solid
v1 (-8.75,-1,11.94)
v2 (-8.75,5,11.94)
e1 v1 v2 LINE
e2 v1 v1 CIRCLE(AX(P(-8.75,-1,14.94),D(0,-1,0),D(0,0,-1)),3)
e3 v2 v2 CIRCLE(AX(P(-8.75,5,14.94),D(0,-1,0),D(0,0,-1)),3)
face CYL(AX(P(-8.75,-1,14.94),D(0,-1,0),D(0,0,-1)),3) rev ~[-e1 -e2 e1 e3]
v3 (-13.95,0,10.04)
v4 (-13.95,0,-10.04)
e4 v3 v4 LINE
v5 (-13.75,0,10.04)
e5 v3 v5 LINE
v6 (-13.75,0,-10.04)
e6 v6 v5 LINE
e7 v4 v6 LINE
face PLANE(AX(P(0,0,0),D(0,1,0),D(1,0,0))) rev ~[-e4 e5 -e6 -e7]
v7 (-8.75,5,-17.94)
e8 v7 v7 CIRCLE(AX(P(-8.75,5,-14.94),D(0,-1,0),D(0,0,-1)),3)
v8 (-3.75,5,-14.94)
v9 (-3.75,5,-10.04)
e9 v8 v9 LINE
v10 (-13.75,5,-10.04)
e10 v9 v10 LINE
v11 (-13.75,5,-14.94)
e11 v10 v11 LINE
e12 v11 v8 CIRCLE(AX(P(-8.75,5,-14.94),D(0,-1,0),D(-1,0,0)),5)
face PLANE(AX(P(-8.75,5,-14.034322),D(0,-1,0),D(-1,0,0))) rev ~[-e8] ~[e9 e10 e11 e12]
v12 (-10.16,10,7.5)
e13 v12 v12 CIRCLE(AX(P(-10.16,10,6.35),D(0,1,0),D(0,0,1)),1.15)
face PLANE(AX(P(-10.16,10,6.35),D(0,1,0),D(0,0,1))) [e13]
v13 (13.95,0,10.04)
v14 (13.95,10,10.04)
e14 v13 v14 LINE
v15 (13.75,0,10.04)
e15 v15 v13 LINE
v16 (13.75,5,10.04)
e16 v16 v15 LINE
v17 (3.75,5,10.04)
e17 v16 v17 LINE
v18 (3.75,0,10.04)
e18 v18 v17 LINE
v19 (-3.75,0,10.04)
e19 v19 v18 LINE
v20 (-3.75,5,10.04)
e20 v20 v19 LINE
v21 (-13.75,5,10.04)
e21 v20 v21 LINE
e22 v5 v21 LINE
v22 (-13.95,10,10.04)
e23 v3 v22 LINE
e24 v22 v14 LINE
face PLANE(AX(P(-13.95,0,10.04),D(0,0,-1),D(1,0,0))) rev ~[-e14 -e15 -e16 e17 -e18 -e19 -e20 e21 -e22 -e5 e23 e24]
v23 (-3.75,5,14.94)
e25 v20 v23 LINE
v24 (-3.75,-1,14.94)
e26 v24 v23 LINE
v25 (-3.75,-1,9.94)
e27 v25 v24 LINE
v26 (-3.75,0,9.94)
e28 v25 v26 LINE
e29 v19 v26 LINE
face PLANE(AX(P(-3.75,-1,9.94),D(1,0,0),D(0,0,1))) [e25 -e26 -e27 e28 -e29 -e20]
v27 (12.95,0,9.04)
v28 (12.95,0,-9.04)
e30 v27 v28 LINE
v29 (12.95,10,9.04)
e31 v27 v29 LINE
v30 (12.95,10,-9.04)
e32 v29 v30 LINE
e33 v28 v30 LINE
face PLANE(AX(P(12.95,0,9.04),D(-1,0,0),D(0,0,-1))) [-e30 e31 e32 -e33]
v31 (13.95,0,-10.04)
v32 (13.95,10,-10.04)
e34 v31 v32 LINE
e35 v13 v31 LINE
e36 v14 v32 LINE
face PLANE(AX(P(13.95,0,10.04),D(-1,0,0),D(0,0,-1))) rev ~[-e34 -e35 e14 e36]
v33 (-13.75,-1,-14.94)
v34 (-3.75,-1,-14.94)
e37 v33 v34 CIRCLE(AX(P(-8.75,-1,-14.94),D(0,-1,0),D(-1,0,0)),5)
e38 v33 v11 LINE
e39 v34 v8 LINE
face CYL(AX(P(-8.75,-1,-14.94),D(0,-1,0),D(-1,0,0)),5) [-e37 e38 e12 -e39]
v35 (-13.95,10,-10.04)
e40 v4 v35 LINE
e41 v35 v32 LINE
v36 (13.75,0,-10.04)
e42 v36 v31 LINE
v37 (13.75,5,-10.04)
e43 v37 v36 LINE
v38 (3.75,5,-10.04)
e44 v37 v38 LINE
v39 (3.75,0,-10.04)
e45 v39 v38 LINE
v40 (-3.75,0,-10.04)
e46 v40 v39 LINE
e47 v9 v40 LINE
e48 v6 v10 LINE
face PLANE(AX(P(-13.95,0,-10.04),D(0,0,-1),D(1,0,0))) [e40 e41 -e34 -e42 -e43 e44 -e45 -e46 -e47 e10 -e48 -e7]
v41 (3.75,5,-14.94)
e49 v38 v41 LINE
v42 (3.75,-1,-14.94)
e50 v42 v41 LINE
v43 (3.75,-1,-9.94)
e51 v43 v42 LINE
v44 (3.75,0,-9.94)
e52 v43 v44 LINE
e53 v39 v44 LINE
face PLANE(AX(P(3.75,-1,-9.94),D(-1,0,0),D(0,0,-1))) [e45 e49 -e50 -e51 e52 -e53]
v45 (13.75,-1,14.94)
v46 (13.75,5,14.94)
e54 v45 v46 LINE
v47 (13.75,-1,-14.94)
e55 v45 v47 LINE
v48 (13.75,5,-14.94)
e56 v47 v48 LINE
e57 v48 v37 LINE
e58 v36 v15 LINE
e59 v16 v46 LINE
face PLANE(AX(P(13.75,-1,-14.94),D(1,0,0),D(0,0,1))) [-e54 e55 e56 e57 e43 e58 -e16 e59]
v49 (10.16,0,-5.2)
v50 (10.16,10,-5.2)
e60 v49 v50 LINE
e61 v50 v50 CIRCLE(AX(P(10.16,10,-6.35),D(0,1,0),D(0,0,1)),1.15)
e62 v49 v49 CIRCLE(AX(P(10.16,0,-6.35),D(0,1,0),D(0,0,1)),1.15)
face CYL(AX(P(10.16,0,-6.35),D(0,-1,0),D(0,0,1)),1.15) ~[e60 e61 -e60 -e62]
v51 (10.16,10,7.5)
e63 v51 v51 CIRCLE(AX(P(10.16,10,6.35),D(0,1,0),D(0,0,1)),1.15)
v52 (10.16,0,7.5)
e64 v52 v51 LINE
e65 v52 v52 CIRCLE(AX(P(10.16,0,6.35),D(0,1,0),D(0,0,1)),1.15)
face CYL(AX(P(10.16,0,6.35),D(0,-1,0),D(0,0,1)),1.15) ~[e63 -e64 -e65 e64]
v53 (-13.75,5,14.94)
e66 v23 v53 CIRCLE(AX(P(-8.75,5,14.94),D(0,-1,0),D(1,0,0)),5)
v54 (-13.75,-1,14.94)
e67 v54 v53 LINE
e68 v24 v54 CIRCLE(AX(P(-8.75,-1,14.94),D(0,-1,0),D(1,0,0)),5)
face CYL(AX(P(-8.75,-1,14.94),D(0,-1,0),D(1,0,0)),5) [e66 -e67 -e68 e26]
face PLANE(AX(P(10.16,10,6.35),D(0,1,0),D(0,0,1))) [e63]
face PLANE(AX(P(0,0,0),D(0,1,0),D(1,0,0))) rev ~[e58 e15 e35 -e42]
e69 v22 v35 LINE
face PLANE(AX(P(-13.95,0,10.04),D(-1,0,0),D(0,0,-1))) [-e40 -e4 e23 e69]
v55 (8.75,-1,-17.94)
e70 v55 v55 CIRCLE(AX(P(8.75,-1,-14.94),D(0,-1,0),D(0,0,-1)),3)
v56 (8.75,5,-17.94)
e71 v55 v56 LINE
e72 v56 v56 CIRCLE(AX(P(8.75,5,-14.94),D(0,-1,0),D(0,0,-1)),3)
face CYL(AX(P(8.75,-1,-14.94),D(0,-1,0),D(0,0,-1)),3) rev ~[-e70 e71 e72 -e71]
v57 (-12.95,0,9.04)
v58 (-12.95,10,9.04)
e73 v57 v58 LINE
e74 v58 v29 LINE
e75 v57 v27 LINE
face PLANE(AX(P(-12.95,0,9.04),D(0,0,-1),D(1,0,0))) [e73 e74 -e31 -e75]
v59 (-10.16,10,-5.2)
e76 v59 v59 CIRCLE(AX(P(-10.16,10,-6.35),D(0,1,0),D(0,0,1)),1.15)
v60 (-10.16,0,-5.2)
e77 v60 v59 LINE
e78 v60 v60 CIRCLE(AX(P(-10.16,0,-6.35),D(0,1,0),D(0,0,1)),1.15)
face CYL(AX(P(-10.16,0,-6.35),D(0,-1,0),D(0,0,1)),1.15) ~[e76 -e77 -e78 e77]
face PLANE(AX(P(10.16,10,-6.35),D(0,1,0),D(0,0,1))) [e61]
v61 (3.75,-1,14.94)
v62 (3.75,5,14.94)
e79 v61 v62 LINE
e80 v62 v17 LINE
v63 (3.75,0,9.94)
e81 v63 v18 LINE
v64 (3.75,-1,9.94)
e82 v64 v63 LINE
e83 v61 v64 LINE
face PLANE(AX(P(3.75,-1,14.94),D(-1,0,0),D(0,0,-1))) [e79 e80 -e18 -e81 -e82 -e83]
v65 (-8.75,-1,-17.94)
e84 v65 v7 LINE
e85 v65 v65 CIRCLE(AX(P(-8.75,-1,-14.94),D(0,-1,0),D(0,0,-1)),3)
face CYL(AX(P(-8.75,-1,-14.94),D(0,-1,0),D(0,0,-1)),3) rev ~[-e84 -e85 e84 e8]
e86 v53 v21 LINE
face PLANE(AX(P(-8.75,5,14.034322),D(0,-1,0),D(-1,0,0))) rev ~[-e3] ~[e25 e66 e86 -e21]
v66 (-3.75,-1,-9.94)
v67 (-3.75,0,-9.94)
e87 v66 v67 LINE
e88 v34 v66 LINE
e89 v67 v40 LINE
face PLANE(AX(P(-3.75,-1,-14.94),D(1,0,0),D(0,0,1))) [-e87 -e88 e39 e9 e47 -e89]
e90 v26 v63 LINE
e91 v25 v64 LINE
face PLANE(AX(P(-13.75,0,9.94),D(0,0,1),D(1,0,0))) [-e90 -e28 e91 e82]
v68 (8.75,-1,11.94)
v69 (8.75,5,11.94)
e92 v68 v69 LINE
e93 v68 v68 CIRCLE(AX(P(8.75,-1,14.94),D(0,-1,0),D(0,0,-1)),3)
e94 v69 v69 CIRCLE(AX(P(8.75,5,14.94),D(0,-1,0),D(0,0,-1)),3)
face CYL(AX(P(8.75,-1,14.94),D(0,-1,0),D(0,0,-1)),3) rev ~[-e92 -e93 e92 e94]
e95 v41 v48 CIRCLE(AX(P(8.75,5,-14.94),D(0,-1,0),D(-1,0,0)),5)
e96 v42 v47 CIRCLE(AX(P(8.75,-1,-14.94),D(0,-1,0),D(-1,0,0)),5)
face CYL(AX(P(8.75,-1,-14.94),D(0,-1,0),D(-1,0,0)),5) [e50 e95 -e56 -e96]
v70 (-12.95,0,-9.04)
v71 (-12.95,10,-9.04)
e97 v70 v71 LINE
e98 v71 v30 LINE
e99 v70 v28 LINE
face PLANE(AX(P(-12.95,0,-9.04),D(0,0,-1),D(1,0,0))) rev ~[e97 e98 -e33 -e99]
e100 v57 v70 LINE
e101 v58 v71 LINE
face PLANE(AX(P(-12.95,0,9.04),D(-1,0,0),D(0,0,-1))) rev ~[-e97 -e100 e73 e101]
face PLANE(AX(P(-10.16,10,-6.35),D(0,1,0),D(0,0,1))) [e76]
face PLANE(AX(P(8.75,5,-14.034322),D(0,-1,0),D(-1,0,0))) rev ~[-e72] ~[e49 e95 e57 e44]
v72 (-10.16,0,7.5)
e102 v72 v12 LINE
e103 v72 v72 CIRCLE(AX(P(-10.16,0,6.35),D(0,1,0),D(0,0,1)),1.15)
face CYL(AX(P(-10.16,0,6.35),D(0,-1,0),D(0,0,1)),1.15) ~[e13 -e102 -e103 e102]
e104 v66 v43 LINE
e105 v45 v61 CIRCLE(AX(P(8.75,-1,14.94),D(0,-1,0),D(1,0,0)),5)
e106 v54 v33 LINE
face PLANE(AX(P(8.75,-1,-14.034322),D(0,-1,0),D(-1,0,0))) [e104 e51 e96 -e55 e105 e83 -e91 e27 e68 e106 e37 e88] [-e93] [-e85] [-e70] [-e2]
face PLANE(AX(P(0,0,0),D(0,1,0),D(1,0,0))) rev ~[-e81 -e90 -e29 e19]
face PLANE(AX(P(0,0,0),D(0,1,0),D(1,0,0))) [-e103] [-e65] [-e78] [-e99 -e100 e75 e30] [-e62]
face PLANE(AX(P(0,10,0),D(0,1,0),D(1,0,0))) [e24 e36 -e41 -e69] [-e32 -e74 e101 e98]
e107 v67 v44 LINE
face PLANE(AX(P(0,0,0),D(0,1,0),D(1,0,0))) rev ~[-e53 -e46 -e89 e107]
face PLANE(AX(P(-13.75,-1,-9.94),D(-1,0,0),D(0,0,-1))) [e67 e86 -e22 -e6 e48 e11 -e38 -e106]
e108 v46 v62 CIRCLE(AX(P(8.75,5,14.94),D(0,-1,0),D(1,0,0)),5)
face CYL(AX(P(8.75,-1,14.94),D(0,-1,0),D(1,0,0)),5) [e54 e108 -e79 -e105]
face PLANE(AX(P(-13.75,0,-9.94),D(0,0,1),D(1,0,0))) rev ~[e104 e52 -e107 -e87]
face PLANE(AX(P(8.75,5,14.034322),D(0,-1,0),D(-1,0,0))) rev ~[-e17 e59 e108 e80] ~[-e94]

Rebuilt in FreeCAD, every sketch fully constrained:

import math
import FreeCAD as App
import Part
import Sketcher
from FreeCAD import Vector

doc = App.newDocument("Part")
body = doc.addObject("PartDesign::Body", "Body")

# Sketch on XZ plane
sketch1 = body.newObject("Sketcher::SketchObject", "Sketch")
sketch1.AttachmentSupport = (doc.getObject("XZ_Plane"), [""])
sketch1.MapMode = "FlatFace"
sketch1.addGeometry(Part.LineSegment(Vector(-13.95, -10.04, 0), Vector(-13.95, 10.04, 0)), False)
sketch1.addGeometry(Part.LineSegment(Vector(-13.95, 10.04, 0), Vector(13.95, 10.04, 0)), False)
sketch1.addGeometry(Part.LineSegment(Vector(13.95, 10.04, 0), Vector(13.95, -10.04, 0)), False)
sketch1.addGeometry(Part.LineSegment(Vector(13.95, -10.04, 0), Vector(-13.95, -10.04, 0)), False)
sketch1.addGeometry(Part.LineSegment(Vector(12.95, 9.04, 0), Vector(-12.95, 9.04, 0)), False)
sketch1.addGeometry(Part.LineSegment(Vector(-12.95, 9.04, 0), Vector(-12.95, -9.04, 0)), False)
sketch1.addGeometry(Part.LineSegment(Vector(-12.95, -9.04, 0), Vector(12.95, -9.04, 0)), False)
sketch1.addGeometry(Part.LineSegment(Vector(12.95, -9.04, 0), Vector(12.95, 9.04, 0)), False)
sketch1.addConstraint(Sketcher.Constraint("Coincident", 0, 2, 1, 1))
sketch1.addConstraint(Sketcher.Constraint("Coincident", 1, 2, 2, 1))
sketch1.addConstraint(Sketcher.Constraint("Coincident", 2, 2, 3, 1))
sketch1.addConstraint(Sketcher.Constraint("Coincident", 3, 2, 0, 1))
sketch1.addConstraint(Sketcher.Constraint("Coincident", 4, 2, 5, 1))
sketch1.addConstraint(Sketcher.Constraint("Coincident", 5, 2, 6, 1))
sketch1.addConstraint(Sketcher.Constraint("Coincident", 6, 2, 7, 1))
sketch1.addConstraint(Sketcher.Constraint("Coincident", 7, 2, 4, 1))
sketch1.addConstraint(Sketcher.Constraint("Vertical", 0))
sketch1.addConstraint(Sketcher.Constraint("Horizontal", 1))
sketch1.addConstraint(Sketcher.Constraint("Vertical", 2))
sketch1.addConstraint(Sketcher.Constraint("Horizontal", 3))
sketch1.addConstraint(Sketcher.Constraint("Horizontal", 4))
sketch1.addConstraint(Sketcher.Constraint("Vertical", 5))
sketch1.addConstraint(Sketcher.Constraint("Horizontal", 6))
sketch1.addConstraint(Sketcher.Constraint("Vertical", 7))
sketch1.addConstraint(Sketcher.Constraint("Symmetric", 0, 2, 2, 2, -1, 1))
sketch1.addConstraint(Sketcher.Constraint("Symmetric", 4, 2, 6, 2, -1, 1))
sketch1.addConstraint(Sketcher.Constraint("DistanceX", 1, 1, 1, 2, 27.9))
sketch1.addConstraint(Sketcher.Constraint("DistanceX", 4, 2, 4, 1, 25.9))
sketch1.addConstraint(Sketcher.Constraint("DistanceY", 4, 2, 0, 2, 1.0))
sketch1.addConstraint(Sketcher.Constraint("DistanceY", 0, 1, 0, 2, 20.08))
pad1 = body.newObject("PartDesign::Pad", "Pad")
pad1.Profile = sketch1
pad1.Length = 10
pad1.Reversed = True

# Sketch on XZ plane
sketch2 = body.newObject("Sketcher::SketchObject", "Sketch001")
sketch2.AttachmentSupport = (doc.getObject("XZ_Plane"), [""])
sketch2.MapMode = "FlatFace"
sketch2.addGeometry(Part.LineSegment(Vector(-13.75, -9.94, 0), Vector(-13.75, 9.94, 0)), False)
sketch2.addGeometry(Part.LineSegment(Vector(-13.75, 9.94, 0), Vector(13.75, 9.94, 0)), False)
sketch2.addGeometry(Part.LineSegment(Vector(13.75, 9.94, 0), Vector(13.75, -9.94, 0)), False)
sketch2.addGeometry(Part.LineSegment(Vector(13.75, -9.94, 0), Vector(-13.75, -9.94, 0)), False)
sketch2.addConstraint(Sketcher.Constraint("Coincident", 0, 2, 1, 1))
sketch2.addConstraint(Sketcher.Constraint("Coincident", 1, 2, 2, 1))
sketch2.addConstraint(Sketcher.Constraint("Coincident", 2, 2, 3, 1))
sketch2.addConstraint(Sketcher.Constraint("Coincident", 3, 2, 0, 1))
sketch2.addConstraint(Sketcher.Constraint("Vertical", 0))
sketch2.addConstraint(Sketcher.Constraint("Horizontal", 1))
sketch2.addConstraint(Sketcher.Constraint("Vertical", 2))
sketch2.addConstraint(Sketcher.Constraint("Horizontal", 3))
sketch2.addConstraint(Sketcher.Constraint("Symmetric", 0, 2, 2, 2, -1, 1))
sketch2.addConstraint(Sketcher.Constraint("DistanceX", 1, 1, 1, 2, 27.5))
sketch2.addConstraint(Sketcher.Constraint("DistanceY", 0, 1, 0, 2, 19.88))
pad2 = body.newObject("PartDesign::Pad", "Pad001")
pad2.Profile = sketch2
pad2.Length = 1

# Sketch on XZ plane
sketch3 = body.newObject("Sketcher::SketchObject", "Sketch002")
sketch3.AttachmentSupport = (doc.getObject("XZ_Plane"), [""])
sketch3.MapMode = "FlatFace"
sketch3.addGeometry(Part.Circle(Vector(-10.16, -6.35, 0), Vector(0, 0, 1), 1.15), False)
sketch3.addGeometry(Part.Circle(Vector(10.16, -6.35, 0), Vector(0, 0, 1), 1.15), False)
sketch3.addGeometry(Part.Circle(Vector(-10.16, 6.35, 0), Vector(0, 0, 1), 1.15), False)
sketch3.addGeometry(Part.Circle(Vector(10.16, 6.35, 0), Vector(0, 0, 1), 1.15), False)
sketch3.addConstraint(Sketcher.Constraint("Equal", 0, 1))
sketch3.addConstraint(Sketcher.Constraint("Equal", 1, 2))
sketch3.addConstraint(Sketcher.Constraint("Equal", 2, 3))
sketch3.addConstraint(Sketcher.Constraint("Symmetric", 1, 3, 2, 3, -1, 1))
sketch3.addConstraint(Sketcher.Constraint("Symmetric", 0, 3, 3, 3, -1, 1))
sketch3.addConstraint(Sketcher.Constraint("Symmetric", 0, 3, 1, 3, -2))
sketch3.addConstraint(Sketcher.Constraint("Diameter", 0, 2.3))
sketch3.addConstraint(Sketcher.Constraint("DistanceY", 0, 3, 2, 3, 12.7))
sketch3.addConstraint(Sketcher.Constraint("DistanceX", 0, 3, -1, 1, 10.16))
pad3 = body.newObject("PartDesign::Pad", "Pad002")
pad3.Profile = sketch3
pad3.Length = 10
pad3.Reversed = True

# Sketch on XZ plane
sketch4 = body.newObject("Sketcher::SketchObject", "Sketch003")
sketch4.AttachmentSupport = (doc.getObject("XZ_Plane"), [""])
sketch4.MapMode = "FlatFace"
sketch4.AttachmentOffset = App.Placement(Vector(0, 0, 1), App.Rotation())
sketch4.addGeometry(Part.LineSegment(Vector(13.75, -14.94, 0), Vector(13.75, -9.94, 0)), False)
sketch4.addGeometry(Part.LineSegment(Vector(13.75, -9.94, 0), Vector(3.75, -9.94, 0)), False)
sketch4.addGeometry(Part.LineSegment(Vector(3.75, -9.94, 0), Vector(3.75, -14.94, 0)), False)
sketch4.addGeometry(Part.ArcOfCircle(Part.Circle(Vector(8.75, -14.94, 0), Vector(0, 0, 1), 5), math.radians(180), math.radians(360)), False)
sketch4.addGeometry(Part.Circle(Vector(8.75, -14.94, 0), Vector(0, 0, 1), 3), False)
sketch4.addGeometry(Part.LineSegment(Vector(3.75, 14.94, 0), Vector(3.75, 9.94, 0)), False)
sketch4.addGeometry(Part.LineSegment(Vector(3.75, 9.94, 0), Vector(13.75, 9.94, 0)), False)
sketch4.addGeometry(Part.LineSegment(Vector(13.75, 9.94, 0), Vector(13.75, 14.94, 0)), False)
sketch4.addGeometry(Part.ArcOfCircle(Part.Circle(Vector(8.75, 14.94, 0), Vector(0, 0, 1), 5), math.radians(0), math.radians(180)), False)
sketch4.addGeometry(Part.Circle(Vector(8.75, 14.94, 0), Vector(0, 0, 1), 3), False)
sketch4.addGeometry(Part.LineSegment(Vector(-13.75, 14.94, 0), Vector(-13.75, 9.94, 0)), False)
sketch4.addGeometry(Part.LineSegment(Vector(-13.75, 9.94, 0), Vector(-3.75, 9.94, 0)), False)
sketch4.addGeometry(Part.LineSegment(Vector(-3.75, 9.94, 0), Vector(-3.75, 14.94, 0)), False)
sketch4.addGeometry(Part.ArcOfCircle(Part.Circle(Vector(-8.75, 14.94, 0), Vector(0, 0, 1), 5), math.radians(0), math.radians(180)), False)
sketch4.addGeometry(Part.Circle(Vector(-8.75, 14.94, 0), Vector(0, 0, 1), 3), False)
sketch4.addGeometry(Part.LineSegment(Vector(-3.75, -14.94, 0), Vector(-3.75, -9.94, 0)), False)
sketch4.addGeometry(Part.LineSegment(Vector(-3.75, -9.94, 0), Vector(-13.75, -9.94, 0)), False)
sketch4.addGeometry(Part.LineSegment(Vector(-13.75, -9.94, 0), Vector(-13.75, -14.94, 0)), False)
sketch4.addGeometry(Part.ArcOfCircle(Part.Circle(Vector(-8.75, -14.94, 0), Vector(0, 0, 1), 5), math.radians(180), math.radians(360)), False)
sketch4.addGeometry(Part.Circle(Vector(-8.75, -14.94, 0), Vector(0, 0, 1), 3), False)
sketch4.addConstraint(Sketcher.Constraint("Coincident", 0, 2, 1, 1))
sketch4.addConstraint(Sketcher.Constraint("Coincident", 1, 2, 2, 1))
sketch4.addConstraint(Sketcher.Constraint("Tangent", 2, 2, 3, 1))
sketch4.addConstraint(Sketcher.Constraint("Tangent", 3, 2, 0, 1))
sketch4.addConstraint(Sketcher.Constraint("Coincident", 5, 2, 6, 1))
sketch4.addConstraint(Sketcher.Constraint("Coincident", 6, 2, 7, 1))
sketch4.addConstraint(Sketcher.Constraint("Tangent", 7, 2, 8, 1))
sketch4.addConstraint(Sketcher.Constraint("Tangent", 8, 2, 5, 1))
sketch4.addConstraint(Sketcher.Constraint("Coincident", 10, 2, 11, 1))
sketch4.addConstraint(Sketcher.Constraint("Coincident", 11, 2, 12, 1))
sketch4.addConstraint(Sketcher.Constraint("Tangent", 12, 2, 13, 1))
sketch4.addConstraint(Sketcher.Constraint("Tangent", 13, 2, 10, 1))
sketch4.addConstraint(Sketcher.Constraint("Coincident", 15, 2, 16, 1))
sketch4.addConstraint(Sketcher.Constraint("Coincident", 16, 2, 17, 1))
sketch4.addConstraint(Sketcher.Constraint("Tangent", 17, 2, 18, 1))
sketch4.addConstraint(Sketcher.Constraint("Tangent", 18, 2, 15, 1))
sketch4.addConstraint(Sketcher.Constraint("Vertical", 0))
sketch4.addConstraint(Sketcher.Constraint("Horizontal", 1))
sketch4.addConstraint(Sketcher.Constraint("Vertical", 2))
sketch4.addConstraint(Sketcher.Constraint("Vertical", 5))
sketch4.addConstraint(Sketcher.Constraint("Horizontal", 6))
sketch4.addConstraint(Sketcher.Constraint("Vertical", 7))
sketch4.addConstraint(Sketcher.Constraint("Vertical", 10))
sketch4.addConstraint(Sketcher.Constraint("Horizontal", 11))
sketch4.addConstraint(Sketcher.Constraint("Vertical", 12))
sketch4.addConstraint(Sketcher.Constraint("Vertical", 15))
sketch4.addConstraint(Sketcher.Constraint("Horizontal", 16))
sketch4.addConstraint(Sketcher.Constraint("Vertical", 17))
sketch4.addConstraint(Sketcher.Constraint("Coincident", 4, 3, 3, 3))
sketch4.addConstraint(Sketcher.Constraint("Coincident", 9, 3, 8, 3))
sketch4.addConstraint(Sketcher.Constraint("Coincident", 14, 3, 13, 3))
sketch4.addConstraint(Sketcher.Constraint("Coincident", 19, 3, 18, 3))
sketch4.addConstraint(Sketcher.Constraint("Equal", 3, 8))
sketch4.addConstraint(Sketcher.Constraint("Equal", 4, 9))
sketch4.addConstraint(Sketcher.Constraint("Equal", 8, 13))
sketch4.addConstraint(Sketcher.Constraint("Equal", 9, 14))
sketch4.addConstraint(Sketcher.Constraint("Equal", 13, 18))
sketch4.addConstraint(Sketcher.Constraint("Equal", 14, 19))
sketch4.addConstraint(Sketcher.Constraint("Symmetric", 3, 3, 13, 3, -1, 1))
sketch4.addConstraint(Sketcher.Constraint("Symmetric", 8, 3, 18, 3, -1, 1))
sketch4.addConstraint(Sketcher.Constraint("Symmetric", 8, 3, 13, 3, -2))
sketch4.addConstraint(Sketcher.Constraint("Horizontal", 6, 2, 10, 2))
sketch4.addConstraint(Sketcher.Constraint("Horizontal", 1, 2, 15, 2))
sketch4.addConstraint(Sketcher.Constraint("Equal", 2, 5))
sketch4.addConstraint(Sketcher.Constraint("Diameter", 4, 6.0))
sketch4.addConstraint(Sketcher.Constraint("Radius", 3, 5.0))
sketch4.addConstraint(Sketcher.Constraint("DistanceY", 0, 1, 0, 2, 5.0))
sketch4.addConstraint(Sketcher.Constraint("DistanceX", 13, 3, 8, 3, 17.5))
sketch4.addConstraint(Sketcher.Constraint("DistanceY", 3, 3, -1, 1, 14.94))
pad4 = body.newObject("PartDesign::Pad", "Pad003")
pad4.Profile = sketch4
pad4.Length = 6
pad4.Reversed = True

doc.recompute()
